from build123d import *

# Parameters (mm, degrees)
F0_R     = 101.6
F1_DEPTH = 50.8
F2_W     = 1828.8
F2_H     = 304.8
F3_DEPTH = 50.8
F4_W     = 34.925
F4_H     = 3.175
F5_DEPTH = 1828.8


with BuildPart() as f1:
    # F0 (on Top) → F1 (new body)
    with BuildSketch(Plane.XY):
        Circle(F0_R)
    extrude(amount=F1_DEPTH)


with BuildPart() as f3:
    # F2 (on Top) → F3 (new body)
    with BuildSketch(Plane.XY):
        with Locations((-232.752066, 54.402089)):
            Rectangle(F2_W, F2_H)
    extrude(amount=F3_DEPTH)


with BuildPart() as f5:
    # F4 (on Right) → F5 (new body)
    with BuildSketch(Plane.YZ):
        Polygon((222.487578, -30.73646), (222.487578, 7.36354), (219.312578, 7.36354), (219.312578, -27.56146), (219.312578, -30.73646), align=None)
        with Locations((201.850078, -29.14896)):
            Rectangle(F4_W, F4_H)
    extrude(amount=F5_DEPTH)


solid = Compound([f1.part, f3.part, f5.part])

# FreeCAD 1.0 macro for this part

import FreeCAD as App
import Part
import Sketcher

V = App.Vector
Q = App.Units.Quantity


def add_polygon(sketch, points):
    """Adds a closed chain of lines whose ends are joined by coincident constraints."""
    first, n = sketch.GeometryCount, len(points)
    for a, b in zip(points, points[1:] + points[:1]):
        sketch.addGeometry(Part.LineSegment(App.Vector(*a, 0), App.Vector(*b, 0)), False)
    for i in range(n):
        sketch.addConstraint(Sketcher.Constraint("Coincident", first + i, 2, first + (i + 1) % n, 1))

doc = App.newDocument("Part")
params = doc.addObject("Spreadsheet::Sheet", "Params")
for row, (alias, value) in enumerate([
    ("sketch1_diameter", "8 in"),
    ("pad1_length", "2 in"),
    ("sketch2_width", "72 in"),
    ("sketch2_height", "12 in"),
    ("pad2_length", "2 in"),
    ("sketch3_width", "1.5 in"),
    ("sketch3_width2", "0.125 in"),
    ("pad3_length", "72 in"),
], start=1):
    params.set(f"A{row}", alias)
    params.set(f"B{row}", "=" + value)
    params.setAlias(f"B{row}", alias)

body = doc.addObject("PartDesign::Body", "Body")

# Sketch on XY plane
sketch1 = body.newObject("Sketcher::SketchObject", "Sketch")
sketch1.AttachmentSupport = (doc.getObject("XY_Plane"), [""])
sketch1.MapMode = "FlatFace"
sketch1.addGeometry(Part.Circle(V(0, 0, 0), V(0, 0, 1), 101.6), False)
sketch1.addConstraint([
    Sketcher.Constraint("Coincident", 0, 3, -1, 1),
    Sketcher.Constraint("Diameter", 0, Q("8 in")),
])
sketch1.setExpression("Constraints[1]", "Params.sketch1_diameter")
pad1 = body.newObject("PartDesign::Pad", "Pad")
pad1.Profile = sketch1
pad1.setExpression("Length", "Params.pad1_length")
body2 = doc.addObject("PartDesign::Body", "Body001")

# Sketch on XY plane
sketch2 = body2.newObject("Sketcher::SketchObject", "Sketch001")
sketch2.AttachmentSupport = (doc.getObject("XY_Plane001"), [""])
sketch2.MapMode = "FlatFace"
add_polygon(sketch2, [(-1147.152066, 206.802089), (-1147.152066, -97.997911), (681.647934, -97.997911), (681.647934, 206.802089)])  # lines 0-3
sketch2.addConstraint([
    Sketcher.Constraint("Vertical", 0),
    Sketcher.Constraint("Horizontal", 1),
    Sketcher.Constraint("Vertical", 2),
    Sketcher.Constraint("Horizontal", 3),
    Sketcher.Constraint("DistanceX", 1, 1, 1, 2, Q("72 in")),
    Sketcher.Constraint("DistanceY", 0, 2, 0, 1, Q("12 in")),
    Sketcher.Constraint("DistanceY", 0, 2, -1, 1, 97.997911),
    Sketcher.Constraint("DistanceX", 0, 2, -1, 1, 1147.152066),
])
sketch2.setExpression("Constraints[8]", "Params.sketch2_width")
sketch2.setExpression("Constraints[9]", "Params.sketch2_height")
pad2 = body2.newObject("PartDesign::Pad", "Pad001")
pad2.Profile = sketch2
pad2.setExpression("Length", "Params.pad2_length")
body3 = doc.addObject("PartDesign::Body", "Body002")

# Sketch on YZ plane
sketch3 = body3.newObject("Sketcher::SketchObject", "Sketch002")
sketch3.AttachmentSupport = (doc.getObject("YZ_Plane002"), [""])
sketch3.MapMode = "FlatFace"
add_polygon(sketch3, [(222.487578, -30.73646), (222.487578, 7.36354), (219.312578, 7.36354), (219.312578, -27.56146), (184.387578, -27.56146), (184.387578, -30.73646)])  # lines 0-5
sketch3.addConstraint([
    Sketcher.Constraint("Vertical", 0),
    Sketcher.Constraint("Horizontal", 1),
    Sketcher.Constraint("Vertical", 2),
    Sketcher.Constraint("Horizontal", 3),
    Sketcher.Constraint("Vertical", 4),
    Sketcher.Constraint("Horizontal", 5),
    Sketcher.Constraint("Equal", 5, 0),
    Sketcher.Constraint("Equal", 3, 2),
    Sketcher.Constraint("DistanceX", 5, 1, 5, 2, Q("1.5 in")),
    Sketcher.Constraint("DistanceX", 1, 2, 1, 1, Q("0.125 in")),
    Sketcher.Constraint("DistanceX", -1, 1, 0, 2, 222.487578),
    Sketcher.Constraint("DistanceY", -1, 1, 0, 2, 7.36354),
])
sketch3.setExpression("Constraints[14]", "Params.sketch3_width")
sketch3.setExpression("Constraints[15]", "Params.sketch3_width2")
pad3 = body3.newObject("PartDesign::Pad", "Pad002")
pad3.Profile = sketch3
pad3.setExpression("Length", "Params.pad3_length")

doc.recompute()
